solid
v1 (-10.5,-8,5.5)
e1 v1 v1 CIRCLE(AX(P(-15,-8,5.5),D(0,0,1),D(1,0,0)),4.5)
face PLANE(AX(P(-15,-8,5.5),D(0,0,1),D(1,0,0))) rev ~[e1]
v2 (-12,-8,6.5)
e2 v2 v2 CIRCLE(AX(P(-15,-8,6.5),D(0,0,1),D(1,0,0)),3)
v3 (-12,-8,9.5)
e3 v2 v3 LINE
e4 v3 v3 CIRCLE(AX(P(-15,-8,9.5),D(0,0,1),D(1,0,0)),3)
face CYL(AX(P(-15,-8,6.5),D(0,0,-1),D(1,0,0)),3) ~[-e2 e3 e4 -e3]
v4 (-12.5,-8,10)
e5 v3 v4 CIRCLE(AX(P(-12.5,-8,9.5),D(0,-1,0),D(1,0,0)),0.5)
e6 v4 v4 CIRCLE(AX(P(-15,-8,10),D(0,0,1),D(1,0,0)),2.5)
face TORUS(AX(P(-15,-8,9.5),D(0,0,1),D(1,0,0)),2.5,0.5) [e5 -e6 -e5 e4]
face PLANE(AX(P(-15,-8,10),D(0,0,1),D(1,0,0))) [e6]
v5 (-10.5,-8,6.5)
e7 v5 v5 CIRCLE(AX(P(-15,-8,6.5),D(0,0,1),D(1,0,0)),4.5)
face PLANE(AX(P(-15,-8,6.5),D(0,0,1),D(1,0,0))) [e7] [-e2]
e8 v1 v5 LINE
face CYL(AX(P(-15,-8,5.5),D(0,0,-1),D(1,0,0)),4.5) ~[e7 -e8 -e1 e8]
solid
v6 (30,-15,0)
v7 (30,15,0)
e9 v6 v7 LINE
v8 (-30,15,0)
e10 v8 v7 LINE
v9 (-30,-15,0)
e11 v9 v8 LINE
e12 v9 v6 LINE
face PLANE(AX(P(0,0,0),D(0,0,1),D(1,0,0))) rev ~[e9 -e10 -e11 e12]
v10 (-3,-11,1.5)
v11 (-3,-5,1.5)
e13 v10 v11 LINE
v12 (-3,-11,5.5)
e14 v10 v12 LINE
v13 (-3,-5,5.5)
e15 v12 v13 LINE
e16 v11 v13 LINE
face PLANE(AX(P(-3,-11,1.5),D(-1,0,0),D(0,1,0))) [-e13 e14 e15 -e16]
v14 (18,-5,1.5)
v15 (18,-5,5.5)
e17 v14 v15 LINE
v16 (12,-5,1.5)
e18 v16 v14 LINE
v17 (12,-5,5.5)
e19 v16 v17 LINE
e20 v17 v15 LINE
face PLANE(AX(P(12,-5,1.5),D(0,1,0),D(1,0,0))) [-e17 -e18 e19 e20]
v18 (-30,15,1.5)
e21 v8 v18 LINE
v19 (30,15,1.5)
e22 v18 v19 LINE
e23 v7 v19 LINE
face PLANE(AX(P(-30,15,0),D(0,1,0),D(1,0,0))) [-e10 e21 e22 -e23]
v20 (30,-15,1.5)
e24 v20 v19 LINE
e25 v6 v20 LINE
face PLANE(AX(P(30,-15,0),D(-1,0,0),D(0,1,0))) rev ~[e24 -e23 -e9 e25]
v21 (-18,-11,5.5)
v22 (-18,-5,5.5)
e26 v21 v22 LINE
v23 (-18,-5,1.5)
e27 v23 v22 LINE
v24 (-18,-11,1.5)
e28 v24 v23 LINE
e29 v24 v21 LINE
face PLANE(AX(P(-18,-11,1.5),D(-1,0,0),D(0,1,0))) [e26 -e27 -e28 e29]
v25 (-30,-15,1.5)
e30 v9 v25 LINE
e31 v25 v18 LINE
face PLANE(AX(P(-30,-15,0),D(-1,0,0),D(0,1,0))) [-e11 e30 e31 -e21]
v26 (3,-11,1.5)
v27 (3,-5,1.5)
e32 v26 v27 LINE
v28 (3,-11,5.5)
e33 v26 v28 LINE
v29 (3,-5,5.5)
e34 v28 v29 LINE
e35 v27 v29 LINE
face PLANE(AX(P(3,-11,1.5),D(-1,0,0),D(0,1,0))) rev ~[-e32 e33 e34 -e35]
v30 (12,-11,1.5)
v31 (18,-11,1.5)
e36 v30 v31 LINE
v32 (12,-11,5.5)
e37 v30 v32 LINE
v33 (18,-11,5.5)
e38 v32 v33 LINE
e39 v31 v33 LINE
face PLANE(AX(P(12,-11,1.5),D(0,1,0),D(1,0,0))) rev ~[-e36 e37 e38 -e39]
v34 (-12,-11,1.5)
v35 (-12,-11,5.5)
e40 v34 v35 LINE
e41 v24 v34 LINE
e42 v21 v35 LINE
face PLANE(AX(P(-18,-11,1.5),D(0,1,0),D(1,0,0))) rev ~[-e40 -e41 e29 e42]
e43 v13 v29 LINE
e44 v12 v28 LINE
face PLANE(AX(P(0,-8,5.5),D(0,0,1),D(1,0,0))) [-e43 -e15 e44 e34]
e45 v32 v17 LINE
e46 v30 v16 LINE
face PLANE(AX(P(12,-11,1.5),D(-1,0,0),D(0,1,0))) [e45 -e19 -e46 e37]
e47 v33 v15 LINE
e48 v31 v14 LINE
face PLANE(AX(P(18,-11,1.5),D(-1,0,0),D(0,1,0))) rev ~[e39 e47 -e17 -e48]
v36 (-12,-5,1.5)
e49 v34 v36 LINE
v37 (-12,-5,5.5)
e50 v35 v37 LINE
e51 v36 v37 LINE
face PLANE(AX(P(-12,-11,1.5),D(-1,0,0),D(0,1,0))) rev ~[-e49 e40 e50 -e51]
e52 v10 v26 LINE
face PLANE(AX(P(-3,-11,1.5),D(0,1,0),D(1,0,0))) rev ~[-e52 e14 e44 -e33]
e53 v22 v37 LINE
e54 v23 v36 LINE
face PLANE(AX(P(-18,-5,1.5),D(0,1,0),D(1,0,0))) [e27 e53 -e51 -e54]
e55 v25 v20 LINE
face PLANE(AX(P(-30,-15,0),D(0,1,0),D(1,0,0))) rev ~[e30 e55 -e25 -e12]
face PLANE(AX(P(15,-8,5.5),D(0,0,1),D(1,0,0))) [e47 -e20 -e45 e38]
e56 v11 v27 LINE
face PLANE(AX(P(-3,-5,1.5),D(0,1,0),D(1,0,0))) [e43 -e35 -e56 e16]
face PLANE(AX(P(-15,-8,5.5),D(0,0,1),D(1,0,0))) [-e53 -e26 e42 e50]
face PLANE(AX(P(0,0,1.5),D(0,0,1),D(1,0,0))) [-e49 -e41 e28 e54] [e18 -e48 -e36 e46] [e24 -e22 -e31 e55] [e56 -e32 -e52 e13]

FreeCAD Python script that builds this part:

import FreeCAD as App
import Part
import Sketcher
from FreeCAD import Vector
Q = App.Units.Quantity


def edges_at(feature, points):
    """Names of the edges that pass closest to the given points."""
    edges = feature.Shape.Edges
    near = lambda p: min(range(len(edges)), key=lambda i: edges[i].distToShape(Part.Vertex(*p))[0])
    return sorted({f"Edge{near(p) + 1}" for p in points})


def add_polygon(sketch, points):
    """Adds a closed chain of lines whose ends are joined by coincident constraints."""
    first, n = sketch.GeometryCount, len(points)
    for a, b in zip(points, points[1:] + points[:1]):
        sketch.addGeometry(Part.LineSegment(App.Vector(*a, 0), App.Vector(*b, 0)), False)
    for i in range(n):
        sketch.addConstraint(Sketcher.Constraint("Coincident", first + i, 2, first + (i + 1) % n, 1))

doc = App.newDocument("Part")
body = doc.addObject("PartDesign::Body", "Body")

sketch1 = doc.addObject("Sketcher::SketchObject", "Sketch")
body.addObject(sketch1)
sketch1.AttachmentSupport = (doc.XY_Plane, [""])
sketch1.MapMode = "FlatFace"
add_polygon(sketch1, [(-30, 15), (-30, -15), (30, -15), (30, 15)])
sketch1.addConstraint([
    Sketcher.Constraint("Vertical", 0),
    Sketcher.Constraint("Horizontal", 1),
    Sketcher.Constraint("Vertical", 2),
    Sketcher.Constraint("Horizontal", 3),
    Sketcher.Constraint("Symmetric", 0, 2, 2, 2, -1, 1),
    Sketcher.Constraint("DistanceX", 1, 1, 1, 2, Q("60 mm")),
    Sketcher.Constraint("DistanceY", 0, 2, 0, 1, Q("30 mm")),
])
pad1 = doc.addObject("PartDesign::Pad", "Pad")
body.addObject(pad1)
pad1.Profile = sketch1
pad1.Length = 1.5

sketch2 = doc.addObject("Sketcher::SketchObject", "Sketch001")
body.addObject(sketch2)
sketch2.AttachmentSupport = (doc.XY_Plane, [""])
sketch2.MapMode = "FlatFace"
sketch2.AttachmentOffset = App.Placement(Vector(0, 0, 1.5), App.Rotation())
add_polygon(sketch2, [(-18, -5), (-18, -11), (-12, -11), (-12, -5)])
add_polygon(sketch2, [(-3, -5), (-3, -11), (3, -11), (3, -5)])
add_polygon(sketch2, [(12, -5), (12, -11), (18, -11), (18, -5)])
sketch2.addConstraint([
    Sketcher.Constraint("Vertical", 0),
    Sketcher.Constraint("Horizontal", 1),
    Sketcher.Constraint("Vertical", 2),
    Sketcher.Constraint("Horizontal", 3),
    Sketcher.Constraint("Vertical", 4),
    Sketcher.Constraint("Horizontal", 5),
    Sketcher.Constraint("Vertical", 6),
    Sketcher.Constraint("Horizontal", 7),
    Sketcher.Constraint("Vertical", 8),
    Sketcher.Constraint("Horizontal", 9),
    Sketcher.Constraint("Vertical", 10),
    Sketcher.Constraint("Horizontal", 11),
    Sketcher.Constraint("Symmetric", 1, 2, 8, 2, -2),
    Sketcher.Constraint("Symmetric", 3, 2, 10, 2, -2),
    Sketcher.Constraint("Horizontal", 1, 2, 4, 2),
    Sketcher.Constraint("Horizontal", 3, 2, 6, 2),
    Sketcher.Constraint("Equal", 3, 5),
    Sketcher.Constraint("Equal", 11, 0),
    Sketcher.Constraint("DistanceX", 1, 1, 1, 2, Q("6 mm")),
    Sketcher.Constraint("DistanceX", 0, 2, -1, 1, Q("18 mm")),
    Sketcher.Constraint("DistanceY", 0, 2, -1, 1, Q("11 mm")),
    Sketcher.Constraint("DistanceX", 4, 2, -1, 1, Q("3 mm")),
])
pad2 = doc.addObject("PartDesign::Pad", "Pad001")
body.addObject(pad2)
pad2.Profile = sketch2
pad2.Length = 4
body2 = doc.addObject("PartDesign::Body", "Body001")

sketch3 = doc.addObject("Sketcher::SketchObject", "Sketch002")
body2.addObject(sketch3)
sketch3.AttachmentSupport = (doc.getObject("XY_Plane001"), [""])
sketch3.MapMode = "FlatFace"
sketch3.AttachmentOffset = App.Placement(Vector(0, 0, 5.5), App.Rotation())
sketch3.addGeometry(Part.Circle(Vector(-15, -8, 0), Vector(0, 0, 1), 4.5), False)
sketch3.addConstraint([
    Sketcher.Constraint("Diameter", 0, Q("9 mm")),
    Sketcher.Constraint("DistanceX", 0, 3, -1, 1, Q("15 mm")),
    Sketcher.Constraint("DistanceY", 0, 3, -1, 1, Q("8 mm")),
])
pad3 = doc.addObject("PartDesign::Pad", "Pad002")
body2.addObject(pad3)
pad3.Profile = sketch3
pad3.Length = 1

sketch4 = doc.addObject("Sketcher::SketchObject", "Sketch003")
body2.addObject(sketch4)
sketch4.AttachmentSupport = (doc.getObject("XY_Plane001"), [""])
sketch4.MapMode = "FlatFace"
sketch4.AttachmentOffset = App.Placement(Vector(0, 0, 6.5), App.Rotation())
sketch4.addGeometry(Part.Circle(Vector(-15, -8, 0), Vector(0, 0, 1), 3), False)
sketch4.addConstraint([
    Sketcher.Constraint("Diameter", 0, Q("6 mm")),
    Sketcher.Constraint("DistanceX", 0, 3, -1, 1, Q("15 mm")),
    Sketcher.Constraint("DistanceY", 0, 3, -1, 1, Q("8 mm")),
])
pad4 = doc.addObject("PartDesign::Pad", "Pad003")
body2.addObject(pad4)
pad4.Profile = sketch4
pad4.Length = 3.5
doc.recompute()

fillet = doc.addObject("PartDesign::Fillet", "Fillet")
body2.addObject(fillet)
fillet.Base = (pad4, edges_at(pad4, [(-18, -8, 10)]))
fillet.Radius = 0.5

doc.recompute()
